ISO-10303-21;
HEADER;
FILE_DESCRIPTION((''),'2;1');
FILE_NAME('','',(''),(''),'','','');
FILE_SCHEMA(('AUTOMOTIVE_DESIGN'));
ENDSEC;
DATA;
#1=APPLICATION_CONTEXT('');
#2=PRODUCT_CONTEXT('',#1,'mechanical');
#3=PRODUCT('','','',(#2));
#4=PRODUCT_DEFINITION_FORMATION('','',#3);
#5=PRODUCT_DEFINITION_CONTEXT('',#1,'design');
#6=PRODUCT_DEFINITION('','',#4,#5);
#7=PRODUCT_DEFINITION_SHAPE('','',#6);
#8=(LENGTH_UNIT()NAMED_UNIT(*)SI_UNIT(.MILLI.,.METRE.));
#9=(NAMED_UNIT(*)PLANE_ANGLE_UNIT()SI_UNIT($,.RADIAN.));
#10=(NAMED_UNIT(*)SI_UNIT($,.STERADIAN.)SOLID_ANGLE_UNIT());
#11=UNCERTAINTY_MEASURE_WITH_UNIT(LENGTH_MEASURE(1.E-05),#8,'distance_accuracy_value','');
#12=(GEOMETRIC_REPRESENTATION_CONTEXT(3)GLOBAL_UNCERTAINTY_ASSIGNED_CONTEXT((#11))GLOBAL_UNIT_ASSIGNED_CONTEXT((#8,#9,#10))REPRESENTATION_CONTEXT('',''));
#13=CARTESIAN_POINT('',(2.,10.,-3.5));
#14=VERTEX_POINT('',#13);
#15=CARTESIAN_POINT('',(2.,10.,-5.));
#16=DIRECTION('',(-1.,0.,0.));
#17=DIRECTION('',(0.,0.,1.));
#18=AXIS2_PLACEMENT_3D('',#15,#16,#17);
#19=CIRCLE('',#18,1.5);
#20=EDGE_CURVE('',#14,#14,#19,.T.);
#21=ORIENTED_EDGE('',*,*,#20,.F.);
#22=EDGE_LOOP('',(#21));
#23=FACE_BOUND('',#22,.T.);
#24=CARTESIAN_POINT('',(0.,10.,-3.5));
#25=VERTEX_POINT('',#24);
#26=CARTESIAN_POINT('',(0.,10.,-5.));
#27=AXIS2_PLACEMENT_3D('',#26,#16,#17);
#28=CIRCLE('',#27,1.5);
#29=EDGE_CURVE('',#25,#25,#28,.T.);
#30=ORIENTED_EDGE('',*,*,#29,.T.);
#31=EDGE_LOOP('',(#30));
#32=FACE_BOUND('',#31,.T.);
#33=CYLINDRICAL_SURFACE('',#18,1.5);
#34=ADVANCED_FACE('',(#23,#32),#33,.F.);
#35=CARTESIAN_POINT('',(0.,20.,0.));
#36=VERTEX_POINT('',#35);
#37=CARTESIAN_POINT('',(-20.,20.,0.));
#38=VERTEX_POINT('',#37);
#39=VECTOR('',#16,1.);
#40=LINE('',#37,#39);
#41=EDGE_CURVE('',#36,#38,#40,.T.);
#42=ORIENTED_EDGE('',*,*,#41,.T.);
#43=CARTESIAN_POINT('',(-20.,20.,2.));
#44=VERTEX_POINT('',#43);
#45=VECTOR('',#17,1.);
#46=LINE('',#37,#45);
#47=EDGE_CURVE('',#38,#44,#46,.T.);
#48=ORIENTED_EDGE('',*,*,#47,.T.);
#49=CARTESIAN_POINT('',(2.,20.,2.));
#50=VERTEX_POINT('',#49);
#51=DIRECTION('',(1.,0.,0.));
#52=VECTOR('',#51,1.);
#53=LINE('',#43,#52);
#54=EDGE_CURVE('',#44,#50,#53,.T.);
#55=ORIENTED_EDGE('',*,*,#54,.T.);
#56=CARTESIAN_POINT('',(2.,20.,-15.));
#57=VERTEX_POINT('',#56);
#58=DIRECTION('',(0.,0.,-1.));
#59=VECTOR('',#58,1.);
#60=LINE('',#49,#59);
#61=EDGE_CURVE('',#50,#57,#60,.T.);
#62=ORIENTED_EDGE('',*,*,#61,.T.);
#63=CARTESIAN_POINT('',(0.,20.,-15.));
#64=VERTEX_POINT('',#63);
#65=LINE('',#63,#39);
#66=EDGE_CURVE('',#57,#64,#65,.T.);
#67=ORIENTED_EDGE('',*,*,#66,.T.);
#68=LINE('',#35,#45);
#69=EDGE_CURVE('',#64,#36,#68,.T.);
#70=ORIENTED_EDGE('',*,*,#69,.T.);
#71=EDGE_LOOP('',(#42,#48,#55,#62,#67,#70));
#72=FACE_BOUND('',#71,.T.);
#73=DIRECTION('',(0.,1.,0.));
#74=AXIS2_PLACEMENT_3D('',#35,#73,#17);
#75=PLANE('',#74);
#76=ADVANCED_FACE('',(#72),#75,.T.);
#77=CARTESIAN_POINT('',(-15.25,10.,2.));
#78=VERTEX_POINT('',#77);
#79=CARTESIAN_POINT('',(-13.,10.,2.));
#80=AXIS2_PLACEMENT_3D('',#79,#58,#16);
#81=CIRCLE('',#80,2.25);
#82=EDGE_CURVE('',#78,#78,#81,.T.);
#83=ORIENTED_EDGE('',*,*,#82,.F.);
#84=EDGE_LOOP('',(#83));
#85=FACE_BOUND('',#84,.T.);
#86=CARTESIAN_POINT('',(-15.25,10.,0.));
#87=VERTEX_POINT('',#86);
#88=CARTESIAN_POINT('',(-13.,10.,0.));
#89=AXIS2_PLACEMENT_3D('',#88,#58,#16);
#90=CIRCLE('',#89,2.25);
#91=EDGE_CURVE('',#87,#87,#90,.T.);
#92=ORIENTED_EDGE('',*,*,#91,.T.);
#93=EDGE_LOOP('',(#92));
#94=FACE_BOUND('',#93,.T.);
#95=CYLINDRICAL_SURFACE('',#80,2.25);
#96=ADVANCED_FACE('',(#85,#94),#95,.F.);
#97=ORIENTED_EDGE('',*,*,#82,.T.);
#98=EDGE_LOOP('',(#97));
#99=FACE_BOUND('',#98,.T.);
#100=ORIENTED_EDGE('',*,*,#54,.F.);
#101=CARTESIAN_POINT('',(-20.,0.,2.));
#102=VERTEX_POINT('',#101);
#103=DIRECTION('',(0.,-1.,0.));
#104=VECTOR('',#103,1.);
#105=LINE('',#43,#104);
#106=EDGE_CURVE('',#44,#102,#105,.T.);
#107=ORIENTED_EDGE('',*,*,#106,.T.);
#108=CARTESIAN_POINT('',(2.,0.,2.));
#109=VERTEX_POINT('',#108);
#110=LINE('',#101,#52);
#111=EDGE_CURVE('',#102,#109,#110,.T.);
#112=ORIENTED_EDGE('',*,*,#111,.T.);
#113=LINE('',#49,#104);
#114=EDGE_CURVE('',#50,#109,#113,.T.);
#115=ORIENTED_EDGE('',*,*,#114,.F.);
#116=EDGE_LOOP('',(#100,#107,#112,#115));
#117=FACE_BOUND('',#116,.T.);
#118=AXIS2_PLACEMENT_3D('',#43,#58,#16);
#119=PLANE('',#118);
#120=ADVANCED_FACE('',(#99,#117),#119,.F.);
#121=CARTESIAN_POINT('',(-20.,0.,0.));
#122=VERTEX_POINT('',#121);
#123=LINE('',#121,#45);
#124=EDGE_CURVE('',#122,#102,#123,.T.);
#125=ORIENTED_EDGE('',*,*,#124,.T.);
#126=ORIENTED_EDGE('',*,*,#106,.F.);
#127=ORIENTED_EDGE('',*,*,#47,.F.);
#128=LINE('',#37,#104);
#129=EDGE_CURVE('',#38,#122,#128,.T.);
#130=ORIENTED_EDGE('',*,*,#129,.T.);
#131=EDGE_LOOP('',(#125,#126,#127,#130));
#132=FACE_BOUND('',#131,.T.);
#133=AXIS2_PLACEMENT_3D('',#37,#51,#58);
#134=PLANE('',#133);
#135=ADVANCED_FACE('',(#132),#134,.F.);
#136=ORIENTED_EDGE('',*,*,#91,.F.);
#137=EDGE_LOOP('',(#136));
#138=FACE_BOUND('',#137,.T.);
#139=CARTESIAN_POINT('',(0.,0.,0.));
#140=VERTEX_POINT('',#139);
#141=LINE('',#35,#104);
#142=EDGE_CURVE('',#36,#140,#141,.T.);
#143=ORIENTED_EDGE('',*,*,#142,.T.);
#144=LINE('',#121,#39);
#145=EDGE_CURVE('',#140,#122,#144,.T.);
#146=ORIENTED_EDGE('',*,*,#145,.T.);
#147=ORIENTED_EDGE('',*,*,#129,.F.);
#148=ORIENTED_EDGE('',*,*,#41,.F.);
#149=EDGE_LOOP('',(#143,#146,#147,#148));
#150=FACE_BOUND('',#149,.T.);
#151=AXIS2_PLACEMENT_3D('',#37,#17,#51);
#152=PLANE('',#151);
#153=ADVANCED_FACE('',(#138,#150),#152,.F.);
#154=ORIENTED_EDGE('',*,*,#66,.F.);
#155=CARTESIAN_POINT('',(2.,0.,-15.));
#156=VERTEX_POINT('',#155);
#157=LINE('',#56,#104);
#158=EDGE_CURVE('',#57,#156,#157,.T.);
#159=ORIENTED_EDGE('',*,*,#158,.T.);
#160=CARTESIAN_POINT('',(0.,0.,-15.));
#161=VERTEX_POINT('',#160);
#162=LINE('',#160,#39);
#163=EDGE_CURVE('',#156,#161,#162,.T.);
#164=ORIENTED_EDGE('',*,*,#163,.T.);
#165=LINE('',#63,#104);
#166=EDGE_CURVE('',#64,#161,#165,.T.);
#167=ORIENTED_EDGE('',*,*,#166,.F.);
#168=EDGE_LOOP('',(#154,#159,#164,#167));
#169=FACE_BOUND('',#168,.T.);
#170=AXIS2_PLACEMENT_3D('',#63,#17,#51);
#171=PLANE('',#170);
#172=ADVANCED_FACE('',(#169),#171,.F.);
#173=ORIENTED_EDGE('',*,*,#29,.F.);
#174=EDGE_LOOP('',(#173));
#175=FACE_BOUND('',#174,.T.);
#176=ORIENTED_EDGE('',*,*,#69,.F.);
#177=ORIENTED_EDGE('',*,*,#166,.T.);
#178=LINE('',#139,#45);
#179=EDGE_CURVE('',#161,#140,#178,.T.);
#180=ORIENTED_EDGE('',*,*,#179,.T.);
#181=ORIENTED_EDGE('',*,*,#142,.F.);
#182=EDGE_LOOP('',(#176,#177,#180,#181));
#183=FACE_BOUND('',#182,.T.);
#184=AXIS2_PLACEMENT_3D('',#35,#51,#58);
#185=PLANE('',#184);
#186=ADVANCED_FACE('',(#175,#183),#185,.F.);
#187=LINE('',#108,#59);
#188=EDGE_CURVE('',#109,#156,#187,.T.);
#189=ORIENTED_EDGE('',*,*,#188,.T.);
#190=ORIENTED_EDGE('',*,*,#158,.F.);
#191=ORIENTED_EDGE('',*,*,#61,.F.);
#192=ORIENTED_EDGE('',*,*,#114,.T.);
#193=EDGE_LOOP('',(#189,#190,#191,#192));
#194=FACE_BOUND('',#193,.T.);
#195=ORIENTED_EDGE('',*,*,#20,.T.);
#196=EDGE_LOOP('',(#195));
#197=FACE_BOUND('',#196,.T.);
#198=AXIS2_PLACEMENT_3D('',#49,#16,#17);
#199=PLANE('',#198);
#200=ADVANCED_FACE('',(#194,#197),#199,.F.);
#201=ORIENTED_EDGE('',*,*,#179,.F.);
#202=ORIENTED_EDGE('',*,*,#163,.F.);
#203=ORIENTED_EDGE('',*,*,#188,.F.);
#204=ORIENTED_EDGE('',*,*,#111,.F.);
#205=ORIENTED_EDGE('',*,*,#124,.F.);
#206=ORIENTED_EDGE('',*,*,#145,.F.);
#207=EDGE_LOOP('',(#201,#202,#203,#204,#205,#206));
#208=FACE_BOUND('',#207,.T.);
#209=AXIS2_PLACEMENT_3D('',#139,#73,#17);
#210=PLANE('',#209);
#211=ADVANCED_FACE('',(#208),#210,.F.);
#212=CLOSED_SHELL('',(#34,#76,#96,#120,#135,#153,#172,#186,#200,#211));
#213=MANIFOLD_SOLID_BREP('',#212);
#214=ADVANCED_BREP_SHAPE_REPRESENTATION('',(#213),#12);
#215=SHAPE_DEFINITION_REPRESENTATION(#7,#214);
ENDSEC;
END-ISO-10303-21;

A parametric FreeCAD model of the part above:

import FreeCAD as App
import Part
import Sketcher

V = App.Vector


def add_polygon(sketch, points):
    """Adds a closed chain of lines whose ends are joined by coincident constraints."""
    first, n = sketch.GeometryCount, len(points)
    for a, b in zip(points, points[1:] + points[:1]):
        sketch.addGeometry(Part.LineSegment(App.Vector(*a, 0), App.Vector(*b, 0)), False)
    for i in range(n):
        sketch.addConstraint(Sketcher.Constraint("Coincident", first + i, 2, first + (i + 1) % n, 1))

doc = App.newDocument("Part")
body = doc.addObject("PartDesign::Body", "Body")

sketch1 = body.newObject("Sketcher::SketchObject", "Sketch")
sketch1.AttachmentSupport = (doc.getObject("XZ_Plane"), [""])
sketch1.MapMode = "FlatFace"
add_polygon(sketch1, [(0, 0), (-20, 0), (-20, 2), (2, 2), (2, -15), (0, -15)])
sketch1.addConstraint([
    Sketcher.Constraint("Horizontal", 0),
    Sketcher.Constraint("Vertical", 1),
    Sketcher.Constraint("Horizontal", 2),
    Sketcher.Constraint("Vertical", 3),
    Sketcher.Constraint("Horizontal", 4),
    Sketcher.Constraint("Vertical", 5),
    Sketcher.Constraint("Coincident", 5, 2, -1, 1),
    Sketcher.Constraint("Equal", 4, 1),
    Sketcher.Constraint("DistanceX", 0, 2, 0, 1, 20.0),
    Sketcher.Constraint("DistanceX", 2, 1, 2, 2, 22.0),
    Sketcher.Constraint("DistanceY", 3, 2, 3, 1, 17.0),
])
pad1 = body.newObject("PartDesign::Pad", "Pad")
pad1.Profile = sketch1
pad1.Length = 20
pad1.Reversed = True

sketch2 = body.newObject("Sketcher::SketchObject", "Sketch001")
sketch2.AttachmentSupport = (doc.getObject("XY_Plane"), [""])
sketch2.MapMode = "FlatFace"
sketch2.addGeometry(Part.Circle(V(-13, 10, 0), V(0, 0, 1), 2.25), False)
sketch2.addConstraint([
    Sketcher.Constraint("Diameter", 0, 4.5),
    Sketcher.Constraint("DistanceX", 0, 3, -1, 1, 13.0),
    Sketcher.Constraint("DistanceY", -1, 1, 0, 3, 10.0),
])
pocket1 = body.newObject("PartDesign::Pocket", "Pocket")
pocket1.Profile = sketch2
pocket1.Type = "ThroughAll"
pocket1.Reversed = True

sketch3 = body.newObject("Sketcher::SketchObject", "Sketch002")
sketch3.AttachmentSupport = (doc.getObject("YZ_Plane"), [""])
sketch3.MapMode = "FlatFace"
sketch3.addGeometry(Part.Circle(V(10, -5, 0), V(0, 0, 1), 1.5), False)
sketch3.addConstraint([
    Sketcher.Constraint("Diameter", 0, 3.0),
    Sketcher.Constraint("DistanceX", -1, 1, 0, 3, 10.0),
    Sketcher.Constraint("DistanceY", 0, 3, -1, 1, 5.0),
])
pocket2 = body.newObject("PartDesign::Pocket", "Pocket001")
pocket2.Profile = sketch3
pocket2.Type = "ThroughAll"
pocket2.Reversed = True

doc.recompute()
